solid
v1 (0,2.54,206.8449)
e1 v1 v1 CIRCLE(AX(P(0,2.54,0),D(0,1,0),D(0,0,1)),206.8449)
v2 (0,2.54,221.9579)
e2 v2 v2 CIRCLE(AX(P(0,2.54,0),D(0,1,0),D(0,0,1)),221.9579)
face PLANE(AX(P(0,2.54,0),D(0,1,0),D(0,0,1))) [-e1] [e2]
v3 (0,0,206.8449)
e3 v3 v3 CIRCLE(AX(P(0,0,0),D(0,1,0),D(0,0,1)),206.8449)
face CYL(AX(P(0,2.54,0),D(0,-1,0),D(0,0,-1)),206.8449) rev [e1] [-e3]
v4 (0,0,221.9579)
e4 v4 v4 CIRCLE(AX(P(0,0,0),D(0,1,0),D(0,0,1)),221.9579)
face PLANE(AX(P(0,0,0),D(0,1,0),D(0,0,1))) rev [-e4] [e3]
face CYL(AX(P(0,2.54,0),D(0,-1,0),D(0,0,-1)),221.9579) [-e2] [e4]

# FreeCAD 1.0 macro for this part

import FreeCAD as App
import Part
import Sketcher
from FreeCAD import Vector
Q = App.Units.Quantity

doc = App.newDocument("Part")
body = doc.addObject("PartDesign::Body", "Body")

# Sketch on XZ plane
sketch1 = body.newObject("Sketcher::SketchObject", "Sketch")
sketch1.AttachmentSupport = (doc.getObject("XZ_Plane"), [""])
sketch1.MapMode = "FlatFace"
sketch1.addGeometry([
    Part.Circle(Vector(0, 0, 0), Vector(0, 0, 1), 222),
    Part.Circle(Vector(0, 0, 0), Vector(0, 0, 1), 207),
], False)
sketch1.addConstraint([
    Sketcher.Constraint("Coincident", 0, 3, -1, 1),
    Sketcher.Constraint("Coincident", 1, 3, -1, 1),
    Sketcher.Constraint("Diameter", 0, Q("17.477 in")),
    Sketcher.Constraint("Diameter", 1, Q("16.287 in")),
])
pad1 = body.newObject("PartDesign::Pad", "Pad")
pad1.Profile = sketch1
pad1.Length = Q("0.1 in")
pad1.Reversed = True

doc.recompute()
